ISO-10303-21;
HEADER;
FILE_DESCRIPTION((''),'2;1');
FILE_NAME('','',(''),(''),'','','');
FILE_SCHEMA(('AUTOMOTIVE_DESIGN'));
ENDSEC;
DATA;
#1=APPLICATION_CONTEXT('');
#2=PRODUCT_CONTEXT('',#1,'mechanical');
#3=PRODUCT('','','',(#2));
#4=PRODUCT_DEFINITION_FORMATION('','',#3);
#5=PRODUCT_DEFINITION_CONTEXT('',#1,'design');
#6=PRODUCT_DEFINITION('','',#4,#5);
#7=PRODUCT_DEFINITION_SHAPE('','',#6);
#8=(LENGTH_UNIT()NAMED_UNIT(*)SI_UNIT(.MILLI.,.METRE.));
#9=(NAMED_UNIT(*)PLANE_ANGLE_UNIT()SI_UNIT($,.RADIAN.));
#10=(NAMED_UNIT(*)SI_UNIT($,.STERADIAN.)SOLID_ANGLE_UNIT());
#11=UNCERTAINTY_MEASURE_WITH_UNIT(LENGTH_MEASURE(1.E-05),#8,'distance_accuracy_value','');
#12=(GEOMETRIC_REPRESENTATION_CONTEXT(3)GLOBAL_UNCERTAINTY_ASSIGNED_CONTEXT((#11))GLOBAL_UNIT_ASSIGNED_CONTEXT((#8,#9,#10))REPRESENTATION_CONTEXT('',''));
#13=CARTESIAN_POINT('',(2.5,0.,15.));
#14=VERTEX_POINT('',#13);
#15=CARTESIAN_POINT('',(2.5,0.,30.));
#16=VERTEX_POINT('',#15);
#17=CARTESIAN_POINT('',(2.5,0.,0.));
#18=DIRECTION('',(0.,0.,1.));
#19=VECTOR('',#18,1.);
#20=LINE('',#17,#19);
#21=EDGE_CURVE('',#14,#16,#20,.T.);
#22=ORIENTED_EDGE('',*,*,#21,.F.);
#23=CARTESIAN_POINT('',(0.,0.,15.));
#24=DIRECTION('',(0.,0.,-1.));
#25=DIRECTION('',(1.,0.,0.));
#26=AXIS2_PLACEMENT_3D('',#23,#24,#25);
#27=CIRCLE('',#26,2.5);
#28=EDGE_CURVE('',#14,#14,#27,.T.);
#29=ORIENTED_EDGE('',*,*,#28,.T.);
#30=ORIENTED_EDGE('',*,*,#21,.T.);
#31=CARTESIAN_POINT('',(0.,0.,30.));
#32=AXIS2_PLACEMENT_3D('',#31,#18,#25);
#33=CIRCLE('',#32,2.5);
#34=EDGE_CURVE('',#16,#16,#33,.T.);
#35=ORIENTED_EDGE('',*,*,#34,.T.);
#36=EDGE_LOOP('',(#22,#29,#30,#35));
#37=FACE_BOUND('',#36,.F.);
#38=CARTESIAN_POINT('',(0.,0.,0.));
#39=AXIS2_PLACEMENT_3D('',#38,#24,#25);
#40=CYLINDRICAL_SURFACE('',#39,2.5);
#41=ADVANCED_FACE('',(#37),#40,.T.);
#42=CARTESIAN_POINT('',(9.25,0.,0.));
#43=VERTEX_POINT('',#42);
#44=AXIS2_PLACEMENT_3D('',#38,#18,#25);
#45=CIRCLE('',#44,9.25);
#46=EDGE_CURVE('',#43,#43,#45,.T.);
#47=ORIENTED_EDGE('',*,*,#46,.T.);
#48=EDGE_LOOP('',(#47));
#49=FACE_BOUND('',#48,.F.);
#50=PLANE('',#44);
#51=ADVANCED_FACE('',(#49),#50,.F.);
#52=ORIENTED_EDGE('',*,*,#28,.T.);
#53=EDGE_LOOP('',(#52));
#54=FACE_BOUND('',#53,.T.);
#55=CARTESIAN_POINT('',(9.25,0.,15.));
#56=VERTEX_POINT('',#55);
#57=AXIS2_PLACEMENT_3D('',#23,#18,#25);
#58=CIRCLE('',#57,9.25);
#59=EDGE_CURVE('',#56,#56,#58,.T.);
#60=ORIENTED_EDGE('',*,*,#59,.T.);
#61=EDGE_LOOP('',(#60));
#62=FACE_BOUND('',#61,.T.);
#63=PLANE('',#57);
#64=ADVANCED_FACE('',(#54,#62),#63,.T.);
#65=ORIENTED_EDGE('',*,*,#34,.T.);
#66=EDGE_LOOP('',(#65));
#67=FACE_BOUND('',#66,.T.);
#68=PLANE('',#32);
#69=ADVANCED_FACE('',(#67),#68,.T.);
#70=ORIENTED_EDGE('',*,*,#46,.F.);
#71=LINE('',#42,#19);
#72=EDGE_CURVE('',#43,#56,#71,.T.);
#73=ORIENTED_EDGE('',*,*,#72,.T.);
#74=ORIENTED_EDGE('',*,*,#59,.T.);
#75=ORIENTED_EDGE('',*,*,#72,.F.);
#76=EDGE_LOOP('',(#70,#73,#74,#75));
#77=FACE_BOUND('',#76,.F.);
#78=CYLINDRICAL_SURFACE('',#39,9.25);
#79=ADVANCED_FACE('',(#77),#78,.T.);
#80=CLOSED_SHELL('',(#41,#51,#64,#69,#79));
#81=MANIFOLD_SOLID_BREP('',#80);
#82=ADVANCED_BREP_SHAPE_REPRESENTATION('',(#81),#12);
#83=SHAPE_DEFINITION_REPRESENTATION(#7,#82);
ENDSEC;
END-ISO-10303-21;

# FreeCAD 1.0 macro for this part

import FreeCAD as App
import Part
import Sketcher
from FreeCAD import Vector

doc = App.newDocument("Part")
body = doc.addObject("PartDesign::Body", "Body")

# Sketch on XY plane
sketch1 = doc.addObject("Sketcher::SketchObject", "Sketch")
body.addObject(sketch1)
sketch1.AttachmentSupport = (doc.XY_Plane, [""])
sketch1.MapMode = "FlatFace"
sketch1.addGeometry(Part.Circle(Vector(0, 0, 0), Vector(0, 0, 1), 2.5), False)
sketch1.addConstraint([
    Sketcher.Constraint("Coincident", 0, 3, -1, 1),
    Sketcher.Constraint("Diameter", 0, 5.0),
])
pad1 = doc.addObject("PartDesign::Pad", "Pad")
body.addObject(pad1)
pad1.Profile = sketch1
pad1.Length = 30
body2 = doc.addObject("PartDesign::Body", "Body001")

# Sketch on XY plane
sketch2 = doc.addObject("Sketcher::SketchObject", "Sketch001")
body2.addObject(sketch2)
sketch2.AttachmentSupport = (doc.getObject("XY_Plane001"), [""])
sketch2.MapMode = "FlatFace"
sketch2.addGeometry(Part.Circle(Vector(0, 0, 0), Vector(0, 0, 1), 9.25), False)
sketch2.addConstraint([
    Sketcher.Constraint("Coincident", 0, 3, -1, 1),
    Sketcher.Constraint("Diameter", 0, 18.5),
])
pad2 = doc.addObject("PartDesign::Pad", "Pad001")
body2.addObject(pad2)
pad2.Profile = sketch2
pad2.Length = 15
doc.recompute()

boolean = doc.addObject("PartDesign::Boolean", "Boolean")
body2.addObject(boolean)
boolean.Type = "Fuse"
boolean.addObjects([body])

doc.recompute()
